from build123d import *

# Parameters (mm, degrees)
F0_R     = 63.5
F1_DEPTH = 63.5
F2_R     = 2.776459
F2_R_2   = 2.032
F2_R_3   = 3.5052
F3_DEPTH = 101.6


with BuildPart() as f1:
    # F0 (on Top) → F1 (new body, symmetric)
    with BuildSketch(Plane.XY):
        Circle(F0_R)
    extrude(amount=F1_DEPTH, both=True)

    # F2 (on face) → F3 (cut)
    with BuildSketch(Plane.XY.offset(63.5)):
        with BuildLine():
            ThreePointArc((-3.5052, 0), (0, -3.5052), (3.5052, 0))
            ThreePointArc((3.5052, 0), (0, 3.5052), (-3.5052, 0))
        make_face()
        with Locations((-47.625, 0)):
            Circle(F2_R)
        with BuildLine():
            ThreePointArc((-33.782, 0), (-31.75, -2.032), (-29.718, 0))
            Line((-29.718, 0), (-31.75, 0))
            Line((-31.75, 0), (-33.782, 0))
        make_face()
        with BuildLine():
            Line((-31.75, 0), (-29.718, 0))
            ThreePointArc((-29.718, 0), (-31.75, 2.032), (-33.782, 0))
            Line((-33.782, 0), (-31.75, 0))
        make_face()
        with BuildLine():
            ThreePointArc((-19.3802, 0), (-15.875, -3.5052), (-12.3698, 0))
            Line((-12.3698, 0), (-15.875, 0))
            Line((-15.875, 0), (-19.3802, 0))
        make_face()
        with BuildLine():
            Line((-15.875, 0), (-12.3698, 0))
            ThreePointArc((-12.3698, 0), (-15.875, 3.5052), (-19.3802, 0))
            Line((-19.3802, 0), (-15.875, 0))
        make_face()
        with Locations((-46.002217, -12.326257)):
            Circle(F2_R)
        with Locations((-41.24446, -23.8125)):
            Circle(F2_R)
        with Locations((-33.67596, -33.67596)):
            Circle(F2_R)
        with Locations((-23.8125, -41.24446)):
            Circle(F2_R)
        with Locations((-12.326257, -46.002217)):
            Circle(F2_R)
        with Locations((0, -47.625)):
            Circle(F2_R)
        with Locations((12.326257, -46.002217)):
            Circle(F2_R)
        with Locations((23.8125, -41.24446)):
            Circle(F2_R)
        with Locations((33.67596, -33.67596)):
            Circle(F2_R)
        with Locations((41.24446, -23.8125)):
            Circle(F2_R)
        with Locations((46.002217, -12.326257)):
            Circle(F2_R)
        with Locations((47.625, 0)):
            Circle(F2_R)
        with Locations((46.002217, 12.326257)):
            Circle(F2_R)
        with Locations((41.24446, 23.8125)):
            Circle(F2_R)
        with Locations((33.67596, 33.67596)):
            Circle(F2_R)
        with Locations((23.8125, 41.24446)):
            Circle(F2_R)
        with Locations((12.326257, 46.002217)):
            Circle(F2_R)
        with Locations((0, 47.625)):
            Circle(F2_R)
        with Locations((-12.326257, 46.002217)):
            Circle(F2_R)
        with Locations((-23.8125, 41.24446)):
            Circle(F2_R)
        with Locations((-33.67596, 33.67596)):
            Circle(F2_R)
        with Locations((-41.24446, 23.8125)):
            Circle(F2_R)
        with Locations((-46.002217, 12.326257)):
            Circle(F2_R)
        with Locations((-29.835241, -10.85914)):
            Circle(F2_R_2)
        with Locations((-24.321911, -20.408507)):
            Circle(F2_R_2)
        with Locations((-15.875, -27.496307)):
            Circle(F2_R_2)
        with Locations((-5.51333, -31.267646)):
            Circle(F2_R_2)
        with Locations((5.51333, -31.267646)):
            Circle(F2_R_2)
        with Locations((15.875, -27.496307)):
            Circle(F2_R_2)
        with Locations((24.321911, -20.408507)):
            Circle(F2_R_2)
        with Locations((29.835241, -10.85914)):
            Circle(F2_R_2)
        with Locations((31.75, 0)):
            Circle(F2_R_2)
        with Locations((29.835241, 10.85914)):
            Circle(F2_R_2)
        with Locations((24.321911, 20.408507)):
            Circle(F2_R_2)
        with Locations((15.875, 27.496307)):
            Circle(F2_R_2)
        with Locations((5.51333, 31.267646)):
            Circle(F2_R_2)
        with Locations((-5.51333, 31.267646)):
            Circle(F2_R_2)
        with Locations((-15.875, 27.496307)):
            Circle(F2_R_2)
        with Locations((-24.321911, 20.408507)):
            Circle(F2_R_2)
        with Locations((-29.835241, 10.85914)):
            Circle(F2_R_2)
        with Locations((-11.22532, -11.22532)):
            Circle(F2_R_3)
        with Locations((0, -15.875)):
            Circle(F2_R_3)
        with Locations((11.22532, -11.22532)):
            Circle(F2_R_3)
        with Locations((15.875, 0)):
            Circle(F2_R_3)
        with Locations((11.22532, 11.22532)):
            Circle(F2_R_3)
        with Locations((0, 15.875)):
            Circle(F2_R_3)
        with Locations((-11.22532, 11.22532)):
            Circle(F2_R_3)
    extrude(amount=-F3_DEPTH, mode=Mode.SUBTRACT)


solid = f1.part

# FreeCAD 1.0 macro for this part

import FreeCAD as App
import Part
import Sketcher

V = App.Vector
Q = App.Units.Quantity

doc = App.newDocument("Part")
body = doc.addObject("PartDesign::Body", "Body")

# Sketch on XY plane
sketch1 = body.newObject("Sketcher::SketchObject", "Sketch")
sketch1.AttachmentSupport = (doc.getObject("XY_Plane"), [""])
sketch1.MapMode = "FlatFace"
sketch1.addGeometry(Part.Circle(V(0, 0, 0), V(0, 0, 1), 64), False)
sketch1.addConstraint([
    Sketcher.Constraint("Coincident", 0, 3, -1, 1),
    Sketcher.Constraint("Diameter", 0, Q("5 in")),
])
pad1 = body.newObject("PartDesign::Pad", "Pad")
pad1.Profile = sketch1
pad1.Length = Q("5 in")
pad1.Midplane = True

# Sketch on XY plane
sketch2 = body.newObject("Sketcher::SketchObject", "Sketch001")
sketch2.AttachmentSupport = (doc.getObject("XY_Plane"), [""])
sketch2.MapMode = "FlatFace"
sketch2.AttachmentOffset = App.Placement(V(0, 0, 2.5 * 25.4), App.Rotation())
sketch2.addGeometry([
    Part.Circle(V(0, 0, 0), V(0, 0, 1), 3.5),  # 0
    Part.Circle(V(-47.6, 0, 0), V(0, 0, 1), 2.8),  # 1
    Part.Circle(V(-31.8, 0, 0), V(0, 0, 1), 2),  # 2
    Part.Circle(V(-15.9, 0, 0), V(0, 0, 1), 3.5),  # 3
    Part.Circle(V(-46, -12.3, 0), V(0, 0, 1), 2.8),  # 4
    Part.Circle(V(-41.2, -23.8, 0), V(0, 0, 1), 2.8),  # 5
    Part.Circle(V(-33.7, -33.7, 0), V(0, 0, 1), 2.8),  # 6
    Part.Circle(V(-23.8, -41.2, 0), V(0, 0, 1), 2.8),  # 7
    Part.Circle(V(-12.3, -46, 0), V(0, 0, 1), 2.8),  # 8
    Part.Circle(V(0, -47.6, 0), V(0, 0, 1), 2.8),  # 9
    Part.Circle(V(12.3, -46, 0), V(0, 0, 1), 2.8),  # 10
    Part.Circle(V(23.8, -41.2, 0), V(0, 0, 1), 2.8),  # 11
    Part.Circle(V(33.7, -33.7, 0), V(0, 0, 1), 2.8),  # 12
    Part.Circle(V(41.2, -23.8, 0), V(0, 0, 1), 2.8),  # 13
    Part.Circle(V(46, -12.3, 0), V(0, 0, 1), 2.8),  # 14
    Part.Circle(V(47.6, 0, 0), V(0, 0, 1), 2.8),  # 15
    Part.Circle(V(46, 12.3, 0), V(0, 0, 1), 2.8),  # 16
    Part.Circle(V(41.2, 23.8, 0), V(0, 0, 1), 2.8),  # 17
    Part.Circle(V(33.7, 33.7, 0), V(0, 0, 1), 2.8),  # 18
    Part.Circle(V(23.8, 41.2, 0), V(0, 0, 1), 2.8),  # 19
    Part.Circle(V(12.3, 46, 0), V(0, 0, 1), 2.8),  # 20
    Part.Circle(V(0, 47.6, 0), V(0, 0, 1), 2.8),  # 21
    Part.Circle(V(-12.3, 46, 0), V(0, 0, 1), 2.8),  # 22
    Part.Circle(V(-23.8, 41.2, 0), V(0, 0, 1), 2.8),  # 23
    Part.Circle(V(-33.7, 33.7, 0), V(0, 0, 1), 2.8),  # 24
    Part.Circle(V(-41.2, 23.8, 0), V(0, 0, 1), 2.8),  # 25
    Part.Circle(V(-46, 12.3, 0), V(0, 0, 1), 2.8),  # 26
    Part.Circle(V(-29.8, -10.9, 0), V(0, 0, 1), 2),  # 27
    Part.Circle(V(-24.3, -20.4, 0), V(0, 0, 1), 2),  # 28
    Part.Circle(V(-15.9, -27.5, 0), V(0, 0, 1), 2),  # 29
    Part.Circle(V(-5.5, -31.3, 0), V(0, 0, 1), 2),  # 30
    Part.Circle(V(5.5, -31.3, 0), V(0, 0, 1), 2),  # 31
    Part.Circle(V(15.9, -27.5, 0), V(0, 0, 1), 2),  # 32
    Part.Circle(V(24.3, -20.4, 0), V(0, 0, 1), 2),  # 33
    Part.Circle(V(29.8, -10.9, 0), V(0, 0, 1), 2),  # 34
    Part.Circle(V(31.8, 0, 0), V(0, 0, 1), 2),  # 35
    Part.Circle(V(29.8, 10.9, 0), V(0, 0, 1), 2),  # 36
    Part.Circle(V(24.3, 20.4, 0), V(0, 0, 1), 2),  # 37
    Part.Circle(V(15.9, 27.5, 0), V(0, 0, 1), 2),  # 38
    Part.Circle(V(5.5, 31.3, 0), V(0, 0, 1), 2),  # 39
    Part.Circle(V(-5.5, 31.3, 0), V(0, 0, 1), 2),  # 40
    Part.Circle(V(-15.9, 27.5, 0), V(0, 0, 1), 2),  # 41
    Part.Circle(V(-24.3, 20.4, 0), V(0, 0, 1), 2),  # 42
    Part.Circle(V(-29.8, 10.9, 0), V(0, 0, 1), 2),  # 43
    Part.Circle(V(-11.2, -11.2, 0), V(0, 0, 1), 3.5),  # 44
    Part.Circle(V(0, -15.9, 0), V(0, 0, 1), 3.5),  # 45
    Part.Circle(V(11.2, -11.2, 0), V(0, 0, 1), 3.5),  # 46
    Part.Circle(V(15.9, 0, 0), V(0, 0, 1), 3.5),  # 47
    Part.Circle(V(11.2, 11.2, 0), V(0, 0, 1), 3.5),  # 48
    Part.Circle(V(0, 15.9, 0), V(0, 0, 1), 3.5),  # 49
    Part.Circle(V(-11.2, 11.2, 0), V(0, 0, 1), 3.5),  # 50
], False)
sketch2.addConstraint([
    Sketcher.Constraint("Coincident", 0, 3, -1, 1),
    Sketcher.Constraint("Equal", 0, 3),
    Sketcher.Constraint("Equal", 1, 4),
    Sketcher.Constraint("Equal", 4, 5),
    Sketcher.Constraint("Equal", 5, 6),
    Sketcher.Constraint("Equal", 6, 7),
    Sketcher.Constraint("Equal", 7, 8),
    Sketcher.Constraint("Equal", 8, 9),
    Sketcher.Constraint("Equal", 9, 10),
    Sketcher.Constraint("Equal", 10, 11),
    Sketcher.Constraint("Equal", 11, 12),
    Sketcher.Constraint("Equal", 12, 13),
    Sketcher.Constraint("Equal", 13, 14),
    Sketcher.Constraint("Equal", 14, 15),
    Sketcher.Constraint("Equal", 15, 16),
    Sketcher.Constraint("Equal", 16, 17),
    Sketcher.Constraint("Equal", 17, 18),
    Sketcher.Constraint("Equal", 18, 19),
    Sketcher.Constraint("Equal", 19, 20),
    Sketcher.Constraint("Equal", 20, 21),
    Sketcher.Constraint("Equal", 21, 22),
    Sketcher.Constraint("Equal", 22, 23),
    Sketcher.Constraint("Equal", 23, 24),
    Sketcher.Constraint("Equal", 24, 25),
    Sketcher.Constraint("Equal", 25, 26),
    Sketcher.Constraint("Equal", 2, 27),
    Sketcher.Constraint("Equal", 27, 28),
    Sketcher.Constraint("Equal", 28, 29),
    Sketcher.Constraint("Equal", 29, 30),
    Sketcher.Constraint("Equal", 30, 31),
    Sketcher.Constraint("Equal", 31, 32),
    Sketcher.Constraint("Equal", 32, 33),
    Sketcher.Constraint("Equal", 33, 34),
    Sketcher.Constraint("Equal", 34, 35),
    Sketcher.Constraint("Equal", 35, 36),
    Sketcher.Constraint("Equal", 36, 37),
    Sketcher.Constraint("Equal", 37, 38),
    Sketcher.Constraint("Equal", 38, 39),
    Sketcher.Constraint("Equal", 39, 40),
    Sketcher.Constraint("Equal", 40, 41),
    Sketcher.Constraint("Equal", 41, 42),
    Sketcher.Constraint("Equal", 42, 43),
    Sketcher.Constraint("Equal", 3, 44),
    Sketcher.Constraint("Equal", 44, 45),
    Sketcher.Constraint("Equal", 45, 46),
    Sketcher.Constraint("Equal", 46, 47),
    Sketcher.Constraint("Equal", 47, 48),
    Sketcher.Constraint("Equal", 48, 49),
    Sketcher.Constraint("Equal", 49, 50),
    Sketcher.Constraint("Symmetric", 1, 3, 15, 3, -1, 1),
    Sketcher.Constraint("Symmetric", 4, 3, 16, 3, -1, 1),
    Sketcher.Constraint("Symmetric", 5, 3, 17, 3, -1, 1),
    Sketcher.Constraint("Symmetric", 6, 3, 18, 3, -1, 1),
    Sketcher.Constraint("Symmetric", 7, 3, 19, 3, -1, 1),
    Sketcher.Constraint("Symmetric", 8, 3, 20, 3, -1, 1),
    Sketcher.Constraint("Symmetric", 9, 3, 21, 3, -1, 1),
    Sketcher.Constraint("Symmetric", 10, 3, 22, 3, -1, 1),
    Sketcher.Constraint("Symmetric", 11, 3, 23, 3, -1, 1),
    Sketcher.Constraint("Symmetric", 12, 3, 24, 3, -1, 1),
    Sketcher.Constraint("Symmetric", 13, 3, 25, 3, -1, 1),
    Sketcher.Constraint("Symmetric", 14, 3, 26, 3, -1, 1),
    Sketcher.Constraint("Symmetric", 2, 3, 35, 3, -1, 1),
    Sketcher.Constraint("Symmetric", 27, 3, 36, 3, -1, 1),
    Sketcher.Constraint("Symmetric", 28, 3, 37, 3, -1, 1),
    Sketcher.Constraint("Symmetric", 29, 3, 38, 3, -1, 1),
    Sketcher.Constraint("Symmetric", 30, 3, 39, 3, -1, 1),
    Sketcher.Constraint("Symmetric", 31, 3, 40, 3, -1, 1),
    Sketcher.Constraint("Symmetric", 32, 3, 41, 3, -1, 1),
    Sketcher.Constraint("Symmetric", 33, 3, 42, 3, -1, 1),
    Sketcher.Constraint("Symmetric", 34, 3, 43, 3, -1, 1),
    Sketcher.Constraint("Symmetric", 3, 3, 47, 3, -1, 1),
    Sketcher.Constraint("Symmetric", 44, 3, 48, 3, -1, 1),
    Sketcher.Constraint("Symmetric", 45, 3, 49, 3, -1, 1),
    Sketcher.Constraint("Symmetric", 46, 3, 50, 3, -1, 1),
    Sketcher.Constraint("Symmetric", 8, 3, 10, 3, -2),
    Sketcher.Constraint("Symmetric", 7, 3, 11, 3, -2),
    Sketcher.Constraint("Symmetric", 6, 3, 12, 3, -2),
    Sketcher.Constraint("Symmetric", 5, 3, 13, 3, -2),
    Sketcher.Constraint("Symmetric", 4, 3, 14, 3, -2),
    Sketcher.Constraint("Symmetric", 30, 3, 31, 3, -2),
    Sketcher.Constraint("Symmetric", 29, 3, 32, 3, -2),
    Sketcher.Constraint("Symmetric", 28, 3, 33, 3, -2),
    Sketcher.Constraint("Symmetric", 27, 3, 34, 3, -2),
    Sketcher.Constraint("Symmetric", 44, 3, 46, 3, -2),
    Sketcher.Constraint("PointOnObject", 1, 3, -1),
    Sketcher.Constraint("PointOnObject", 2, 3, -1),
    Sketcher.Constraint("PointOnObject", 3, 3, -1),
    Sketcher.Constraint("PointOnObject", 9, 3, -2),
    Sketcher.Constraint("PointOnObject", 45, 3, -2),
    Sketcher.Constraint("Vertical", 3, 3, 29, 3),
    Sketcher.Constraint("Diameter", 2, Q("0.16 in")),
    Sketcher.Constraint("Diameter", 0, Q("0.276 in")),
    Sketcher.Constraint("DistanceX", 2, 3, -1, 1, Q("1.25 in")),
    Sketcher.Constraint("DistanceX", 1, 3, 3, 3, Q("1.25 in")),
    Sketcher.Constraint("DistanceX", 1, 3, -1, 1, Q("1.875 in")),
    Sketcher.Constraint("DistanceY", 5, 3, -1, 1, Q("0.9375 in")),
    Sketcher.Constraint("DistanceX", 7, 3, -1, 1, Q("0.9375 in")),
    Sketcher.Constraint("DistanceY", 9, 3, -1, 1, Q("1.875 in")),
    Sketcher.Constraint("DistanceY", 45, 3, -1, 1, Q("0.625 in")),
    Sketcher.Constraint("Diameter", 1, Q("5.552918 mm")),
    Sketcher.Constraint("DistanceX", 5, 3, 6, 3, Q("7.5685 mm")),
    Sketcher.Constraint("DistanceY", 7, 3, 6, 3, Q("7.5685 mm")),
    Sketcher.Constraint("DistanceY", 29, 3, 28, 3, Q("7.0878 mm")),
    Sketcher.Constraint("DistanceX", 5, 3, -1, 1, Q("41.24446 mm")),
    Sketcher.Constraint("DistanceY", 6, 3, -1, 1, Q("33.67596 mm")),
    Sketcher.Constraint("DistanceX", 27, 3, -1, 1, Q("29.835241 mm")),
    Sketcher.Constraint("DistanceY", 27, 3, -1, 1, Q("10.85914 mm")),
    Sketcher.Constraint("DistanceX", 28, 3, -1, 1, Q("24.321911 mm")),
    Sketcher.Constraint("DistanceX", 30, 3, -1, 1, Q("5.51333 mm")),
    Sketcher.Constraint("DistanceX", 44, 3, -1, 1, Q("11.22532 mm")),
    Sketcher.Constraint("DistanceY", 44, 3, -1, 1, Q("11.22532 mm")),
    Sketcher.Constraint("DistanceX", 4, 3, 8, 3, Q("33.67596 mm")),
    Sketcher.Constraint("DistanceY", 8, 3, 4, 3, Q("33.67596 mm")),
    Sketcher.Constraint("DistanceY", 8, 3, 29, 3, Q("18.50591 mm")),
    Sketcher.Constraint("DistanceY", 30, 3, 29, 3, Q("3.771339 mm")),
    Sketcher.Constraint("DistanceX", 4, 3, -1, 1, Q("46.002217 mm")),
    Sketcher.Constraint("DistanceY", 4, 3, -1, 1, Q("12.326257 mm")),
])
pocket1 = body.newObject("PartDesign::Pocket", "Pocket")
pocket1.Profile = sketch2
pocket1.Length = Q("4 in")

doc.recompute()
